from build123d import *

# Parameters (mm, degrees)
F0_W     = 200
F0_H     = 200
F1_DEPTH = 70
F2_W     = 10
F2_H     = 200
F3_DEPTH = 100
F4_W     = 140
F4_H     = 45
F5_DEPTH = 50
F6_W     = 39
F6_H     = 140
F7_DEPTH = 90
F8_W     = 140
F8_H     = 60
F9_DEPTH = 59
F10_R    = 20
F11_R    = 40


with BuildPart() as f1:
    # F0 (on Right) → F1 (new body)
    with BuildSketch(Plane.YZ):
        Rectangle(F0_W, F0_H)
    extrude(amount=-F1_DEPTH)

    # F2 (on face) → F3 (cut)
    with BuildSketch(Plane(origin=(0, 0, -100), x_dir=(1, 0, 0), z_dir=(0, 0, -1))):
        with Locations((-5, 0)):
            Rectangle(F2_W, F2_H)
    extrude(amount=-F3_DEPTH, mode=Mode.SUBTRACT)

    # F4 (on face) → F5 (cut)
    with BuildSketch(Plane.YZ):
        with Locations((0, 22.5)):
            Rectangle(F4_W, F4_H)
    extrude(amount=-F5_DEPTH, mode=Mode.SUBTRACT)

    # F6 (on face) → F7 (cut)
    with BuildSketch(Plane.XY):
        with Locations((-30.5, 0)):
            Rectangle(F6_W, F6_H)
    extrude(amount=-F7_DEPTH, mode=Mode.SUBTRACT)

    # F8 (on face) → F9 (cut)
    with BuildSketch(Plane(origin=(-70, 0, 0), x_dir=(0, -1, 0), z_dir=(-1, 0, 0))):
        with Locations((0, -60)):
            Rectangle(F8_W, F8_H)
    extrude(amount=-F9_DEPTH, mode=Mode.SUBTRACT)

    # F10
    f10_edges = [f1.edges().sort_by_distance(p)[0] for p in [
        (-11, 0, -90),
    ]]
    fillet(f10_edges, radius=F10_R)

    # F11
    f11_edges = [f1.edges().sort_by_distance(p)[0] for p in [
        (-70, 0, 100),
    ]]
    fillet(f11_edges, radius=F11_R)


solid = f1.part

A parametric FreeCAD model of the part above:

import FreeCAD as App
import Part
import Sketcher


def edges_at(feature, points):
    """Names of the edges that pass closest to the given points."""
    edges = feature.Shape.Edges
    near = lambda p: min(range(len(edges)), key=lambda i: edges[i].distToShape(Part.Vertex(*p))[0])
    return sorted({f"Edge{near(p) + 1}" for p in points})

doc = App.newDocument("Part")
body = doc.addObject("PartDesign::Body", "Body")

sketch1 = body.newObject("Sketcher::SketchObject", "Sketch")
sketch1.AttachmentSupport = (doc.getObject("YZ_Plane"), [""])
sketch1.MapMode = "FlatFace"
sketch1.addGeometry(Part.LineSegment(App.Vector(-100, 100, 0), App.Vector(-100, -100, 0)), False)
sketch1.addGeometry(Part.LineSegment(App.Vector(-100, -100, 0), App.Vector(100, -100, 0)), False)
sketch1.addGeometry(Part.LineSegment(App.Vector(100, -100, 0), App.Vector(100, 100, 0)), False)
sketch1.addGeometry(Part.LineSegment(App.Vector(100, 100, 0), App.Vector(-100, 100, 0)), False)
sketch1.addConstraint(Sketcher.Constraint("Coincident", 0, 2, 1, 1))
sketch1.addConstraint(Sketcher.Constraint("Coincident", 1, 2, 2, 1))
sketch1.addConstraint(Sketcher.Constraint("Coincident", 2, 2, 3, 1))
sketch1.addConstraint(Sketcher.Constraint("Coincident", 3, 2, 0, 1))
sketch1.addConstraint(Sketcher.Constraint("Vertical", 0))
sketch1.addConstraint(Sketcher.Constraint("Horizontal", 1))
sketch1.addConstraint(Sketcher.Constraint("Vertical", 2))
sketch1.addConstraint(Sketcher.Constraint("Horizontal", 3))
sketch1.addConstraint(Sketcher.Constraint("Symmetric", 0, 2, 2, 2, -1, 1))
sketch1.addConstraint(Sketcher.Constraint("Equal", 3, 0))
sketch1.addConstraint(Sketcher.Constraint("DistanceX", 1, 1, 1, 2, 200.0))
pad1 = body.newObject("PartDesign::Pad", "Pad")
pad1.Profile = sketch1
pad1.Length = 70
pad1.Reversed = True

sketch2 = body.newObject("Sketcher::SketchObject", "Sketch001")
sketch2.AttachmentSupport = (doc.getObject("XY_Plane"), [""])
sketch2.MapMode = "FlatFace"
sketch2.AttachmentOffset = App.Placement(App.Vector(0, 0, -100), App.Rotation())
sketch2.addGeometry(Part.LineSegment(App.Vector(-10, -100, 0), App.Vector(-10, 100, 0)), False)
sketch2.addGeometry(Part.LineSegment(App.Vector(-10, 100, 0), App.Vector(0, 100, 0)), False)
sketch2.addGeometry(Part.LineSegment(App.Vector(0, 100, 0), App.Vector(0, -100, 0)), False)
sketch2.addGeometry(Part.LineSegment(App.Vector(0, -100, 0), App.Vector(-10, -100, 0)), False)
sketch2.addConstraint(Sketcher.Constraint("Coincident", 0, 2, 1, 1))
sketch2.addConstraint(Sketcher.Constraint("Coincident", 1, 2, 2, 1))
sketch2.addConstraint(Sketcher.Constraint("Coincident", 2, 2, 3, 1))
sketch2.addConstraint(Sketcher.Constraint("Coincident", 3, 2, 0, 1))
sketch2.addConstraint(Sketcher.Constraint("Vertical", 0))
sketch2.addConstraint(Sketcher.Constraint("Horizontal", 1))
sketch2.addConstraint(Sketcher.Constraint("Vertical", 2))
sketch2.addConstraint(Sketcher.Constraint("Horizontal", 3))
sketch2.addConstraint(Sketcher.Constraint("Symmetric", 1, 2, 2, 2, -1, 1))
sketch2.addConstraint(Sketcher.Constraint("DistanceX", 1, 1, 1, 2, 10.0))
sketch2.addConstraint(Sketcher.Constraint("DistanceY", 0, 1, 0, 2, 200.0))
pocket1 = body.newObject("PartDesign::Pocket", "Pocket")
pocket1.Profile = sketch2
pocket1.Length = 100
pocket1.Reversed = True

sketch3 = body.newObject("Sketcher::SketchObject", "Sketch002")
sketch3.AttachmentSupport = (doc.getObject("YZ_Plane"), [""])
sketch3.MapMode = "FlatFace"
sketch3.addGeometry(Part.LineSegment(App.Vector(-70, 45, 0), App.Vector(-70, 0, 0)), False)
sketch3.addGeometry(Part.LineSegment(App.Vector(-70, 0, 0), App.Vector(70, 0, 0)), False)
sketch3.addGeometry(Part.LineSegment(App.Vector(70, 0, 0), App.Vector(70, 45, 0)), False)
sketch3.addGeometry(Part.LineSegment(App.Vector(70, 45, 0), App.Vector(-70, 45, 0)), False)
sketch3.addConstraint(Sketcher.Constraint("Coincident", 0, 2, 1, 1))
sketch3.addConstraint(Sketcher.Constraint("Coincident", 1, 2, 2, 1))
sketch3.addConstraint(Sketcher.Constraint("Coincident", 2, 2, 3, 1))
sketch3.addConstraint(Sketcher.Constraint("Coincident", 3, 2, 0, 1))
sketch3.addConstraint(Sketcher.Constraint("Vertical", 0))
sketch3.addConstraint(Sketcher.Constraint("Horizontal", 1))
sketch3.addConstraint(Sketcher.Constraint("Vertical", 2))
sketch3.addConstraint(Sketcher.Constraint("Horizontal", 3))
sketch3.addConstraint(Sketcher.Constraint("Symmetric", 0, 2, 1, 2, -1, 1))
sketch3.addConstraint(Sketcher.Constraint("DistanceX", 1, 1, 1, 2, 140.0))
sketch3.addConstraint(Sketcher.Constraint("DistanceY", 0, 2, 0, 1, 45.0))
pocket2 = body.newObject("PartDesign::Pocket", "Pocket001")
pocket2.Profile = sketch3
pocket2.Length = 50

sketch4 = body.newObject("Sketcher::SketchObject", "Sketch003")
sketch4.AttachmentSupport = (doc.getObject("XY_Plane"), [""])
sketch4.MapMode = "FlatFace"
sketch4.addGeometry(Part.LineSegment(App.Vector(-50, 70, 0), App.Vector(-50, -70, 0)), False)
sketch4.addGeometry(Part.LineSegment(App.Vector(-50, -70, 0), App.Vector(-11, -70, 0)), False)
sketch4.addGeometry(Part.LineSegment(App.Vector(-11, -70, 0), App.Vector(-11, 70, 0)), False)
sketch4.addGeometry(Part.LineSegment(App.Vector(-11, 70, 0), App.Vector(-50, 70, 0)), False)
sketch4.addConstraint(Sketcher.Constraint("Coincident", 0, 2, 1, 1))
sketch4.addConstraint(Sketcher.Constraint("Coincident", 1, 2, 2, 1))
sketch4.addConstraint(Sketcher.Constraint("Coincident", 2, 2, 3, 1))
sketch4.addConstraint(Sketcher.Constraint("Coincident", 3, 2, 0, 1))
sketch4.addConstraint(Sketcher.Constraint("Vertical", 0))
sketch4.addConstraint(Sketcher.Constraint("Horizontal", 1))
sketch4.addConstraint(Sketcher.Constraint("Vertical", 2))
sketch4.addConstraint(Sketcher.Constraint("Horizontal", 3))
sketch4.addConstraint(Sketcher.Constraint("DistanceX", 1, 1, 1, 2, 39.0))
sketch4.addConstraint(Sketcher.Constraint("DistanceY", 0, 2, 0, 1, 140.0))
sketch4.addConstraint(Sketcher.Constraint("DistanceX", 0, 2, -1, 1, 50.0))
sketch4.addConstraint(Sketcher.Constraint("DistanceY", 0, 2, -1, 1, 70.0))
pocket3 = body.newObject("PartDesign::Pocket", "Pocket002")
pocket3.Profile = sketch4
pocket3.Length = 90

sketch5 = body.newObject("Sketcher::SketchObject", "Sketch004")
sketch5.AttachmentSupport = (doc.getObject("YZ_Plane"), [""])
sketch5.MapMode = "FlatFace"
sketch5.AttachmentOffset = App.Placement(App.Vector(0, 0, -70), App.Rotation())
sketch5.addGeometry(Part.LineSegment(App.Vector(70, -30, 0), App.Vector(70, -90, 0)), False)
sketch5.addGeometry(Part.LineSegment(App.Vector(70, -90, 0), App.Vector(-70, -90, 0)), False)
sketch5.addGeometry(Part.LineSegment(App.Vector(-70, -90, 0), App.Vector(-70, -30, 0)), False)
sketch5.addGeometry(Part.LineSegment(App.Vector(-70, -30, 0), App.Vector(70, -30, 0)), False)
sketch5.addConstraint(Sketcher.Constraint("Coincident", 0, 2, 1, 1))
sketch5.addConstraint(Sketcher.Constraint("Coincident", 1, 2, 2, 1))
sketch5.addConstraint(Sketcher.Constraint("Coincident", 2, 2, 3, 1))
sketch5.addConstraint(Sketcher.Constraint("Coincident", 3, 2, 0, 1))
sketch5.addConstraint(Sketcher.Constraint("Vertical", 0))
sketch5.addConstraint(Sketcher.Constraint("Horizontal", 1))
sketch5.addConstraint(Sketcher.Constraint("Vertical", 2))
sketch5.addConstraint(Sketcher.Constraint("Horizontal", 3))
sketch5.addConstraint(Sketcher.Constraint("DistanceX", 1, 2, 1, 1, 140.0))
sketch5.addConstraint(Sketcher.Constraint("DistanceY", 0, 2, 0, 1, 60.0))
sketch5.addConstraint(Sketcher.Constraint("DistanceX", -1, 1, 0, 2, 70.0))
sketch5.addConstraint(Sketcher.Constraint("DistanceY", 0, 2, -1, 1, 90.0))
pocket4 = body.newObject("PartDesign::Pocket", "Pocket003")
pocket4.Profile = sketch5
pocket4.Length = 59
pocket4.Reversed = True
doc.recompute()

fillet = body.newObject("PartDesign::Fillet", "Fillet")
fillet.Base = (pocket4, edges_at(pocket4, [(-11, 0, -90)]))
fillet.Radius = 20
doc.recompute()

fillet2 = body.newObject("PartDesign::Fillet", "Fillet001")
fillet2.Base = (fillet, edges_at(fillet, [(-70, 0, 100)]))
fillet2.Radius = 40

doc.recompute()
